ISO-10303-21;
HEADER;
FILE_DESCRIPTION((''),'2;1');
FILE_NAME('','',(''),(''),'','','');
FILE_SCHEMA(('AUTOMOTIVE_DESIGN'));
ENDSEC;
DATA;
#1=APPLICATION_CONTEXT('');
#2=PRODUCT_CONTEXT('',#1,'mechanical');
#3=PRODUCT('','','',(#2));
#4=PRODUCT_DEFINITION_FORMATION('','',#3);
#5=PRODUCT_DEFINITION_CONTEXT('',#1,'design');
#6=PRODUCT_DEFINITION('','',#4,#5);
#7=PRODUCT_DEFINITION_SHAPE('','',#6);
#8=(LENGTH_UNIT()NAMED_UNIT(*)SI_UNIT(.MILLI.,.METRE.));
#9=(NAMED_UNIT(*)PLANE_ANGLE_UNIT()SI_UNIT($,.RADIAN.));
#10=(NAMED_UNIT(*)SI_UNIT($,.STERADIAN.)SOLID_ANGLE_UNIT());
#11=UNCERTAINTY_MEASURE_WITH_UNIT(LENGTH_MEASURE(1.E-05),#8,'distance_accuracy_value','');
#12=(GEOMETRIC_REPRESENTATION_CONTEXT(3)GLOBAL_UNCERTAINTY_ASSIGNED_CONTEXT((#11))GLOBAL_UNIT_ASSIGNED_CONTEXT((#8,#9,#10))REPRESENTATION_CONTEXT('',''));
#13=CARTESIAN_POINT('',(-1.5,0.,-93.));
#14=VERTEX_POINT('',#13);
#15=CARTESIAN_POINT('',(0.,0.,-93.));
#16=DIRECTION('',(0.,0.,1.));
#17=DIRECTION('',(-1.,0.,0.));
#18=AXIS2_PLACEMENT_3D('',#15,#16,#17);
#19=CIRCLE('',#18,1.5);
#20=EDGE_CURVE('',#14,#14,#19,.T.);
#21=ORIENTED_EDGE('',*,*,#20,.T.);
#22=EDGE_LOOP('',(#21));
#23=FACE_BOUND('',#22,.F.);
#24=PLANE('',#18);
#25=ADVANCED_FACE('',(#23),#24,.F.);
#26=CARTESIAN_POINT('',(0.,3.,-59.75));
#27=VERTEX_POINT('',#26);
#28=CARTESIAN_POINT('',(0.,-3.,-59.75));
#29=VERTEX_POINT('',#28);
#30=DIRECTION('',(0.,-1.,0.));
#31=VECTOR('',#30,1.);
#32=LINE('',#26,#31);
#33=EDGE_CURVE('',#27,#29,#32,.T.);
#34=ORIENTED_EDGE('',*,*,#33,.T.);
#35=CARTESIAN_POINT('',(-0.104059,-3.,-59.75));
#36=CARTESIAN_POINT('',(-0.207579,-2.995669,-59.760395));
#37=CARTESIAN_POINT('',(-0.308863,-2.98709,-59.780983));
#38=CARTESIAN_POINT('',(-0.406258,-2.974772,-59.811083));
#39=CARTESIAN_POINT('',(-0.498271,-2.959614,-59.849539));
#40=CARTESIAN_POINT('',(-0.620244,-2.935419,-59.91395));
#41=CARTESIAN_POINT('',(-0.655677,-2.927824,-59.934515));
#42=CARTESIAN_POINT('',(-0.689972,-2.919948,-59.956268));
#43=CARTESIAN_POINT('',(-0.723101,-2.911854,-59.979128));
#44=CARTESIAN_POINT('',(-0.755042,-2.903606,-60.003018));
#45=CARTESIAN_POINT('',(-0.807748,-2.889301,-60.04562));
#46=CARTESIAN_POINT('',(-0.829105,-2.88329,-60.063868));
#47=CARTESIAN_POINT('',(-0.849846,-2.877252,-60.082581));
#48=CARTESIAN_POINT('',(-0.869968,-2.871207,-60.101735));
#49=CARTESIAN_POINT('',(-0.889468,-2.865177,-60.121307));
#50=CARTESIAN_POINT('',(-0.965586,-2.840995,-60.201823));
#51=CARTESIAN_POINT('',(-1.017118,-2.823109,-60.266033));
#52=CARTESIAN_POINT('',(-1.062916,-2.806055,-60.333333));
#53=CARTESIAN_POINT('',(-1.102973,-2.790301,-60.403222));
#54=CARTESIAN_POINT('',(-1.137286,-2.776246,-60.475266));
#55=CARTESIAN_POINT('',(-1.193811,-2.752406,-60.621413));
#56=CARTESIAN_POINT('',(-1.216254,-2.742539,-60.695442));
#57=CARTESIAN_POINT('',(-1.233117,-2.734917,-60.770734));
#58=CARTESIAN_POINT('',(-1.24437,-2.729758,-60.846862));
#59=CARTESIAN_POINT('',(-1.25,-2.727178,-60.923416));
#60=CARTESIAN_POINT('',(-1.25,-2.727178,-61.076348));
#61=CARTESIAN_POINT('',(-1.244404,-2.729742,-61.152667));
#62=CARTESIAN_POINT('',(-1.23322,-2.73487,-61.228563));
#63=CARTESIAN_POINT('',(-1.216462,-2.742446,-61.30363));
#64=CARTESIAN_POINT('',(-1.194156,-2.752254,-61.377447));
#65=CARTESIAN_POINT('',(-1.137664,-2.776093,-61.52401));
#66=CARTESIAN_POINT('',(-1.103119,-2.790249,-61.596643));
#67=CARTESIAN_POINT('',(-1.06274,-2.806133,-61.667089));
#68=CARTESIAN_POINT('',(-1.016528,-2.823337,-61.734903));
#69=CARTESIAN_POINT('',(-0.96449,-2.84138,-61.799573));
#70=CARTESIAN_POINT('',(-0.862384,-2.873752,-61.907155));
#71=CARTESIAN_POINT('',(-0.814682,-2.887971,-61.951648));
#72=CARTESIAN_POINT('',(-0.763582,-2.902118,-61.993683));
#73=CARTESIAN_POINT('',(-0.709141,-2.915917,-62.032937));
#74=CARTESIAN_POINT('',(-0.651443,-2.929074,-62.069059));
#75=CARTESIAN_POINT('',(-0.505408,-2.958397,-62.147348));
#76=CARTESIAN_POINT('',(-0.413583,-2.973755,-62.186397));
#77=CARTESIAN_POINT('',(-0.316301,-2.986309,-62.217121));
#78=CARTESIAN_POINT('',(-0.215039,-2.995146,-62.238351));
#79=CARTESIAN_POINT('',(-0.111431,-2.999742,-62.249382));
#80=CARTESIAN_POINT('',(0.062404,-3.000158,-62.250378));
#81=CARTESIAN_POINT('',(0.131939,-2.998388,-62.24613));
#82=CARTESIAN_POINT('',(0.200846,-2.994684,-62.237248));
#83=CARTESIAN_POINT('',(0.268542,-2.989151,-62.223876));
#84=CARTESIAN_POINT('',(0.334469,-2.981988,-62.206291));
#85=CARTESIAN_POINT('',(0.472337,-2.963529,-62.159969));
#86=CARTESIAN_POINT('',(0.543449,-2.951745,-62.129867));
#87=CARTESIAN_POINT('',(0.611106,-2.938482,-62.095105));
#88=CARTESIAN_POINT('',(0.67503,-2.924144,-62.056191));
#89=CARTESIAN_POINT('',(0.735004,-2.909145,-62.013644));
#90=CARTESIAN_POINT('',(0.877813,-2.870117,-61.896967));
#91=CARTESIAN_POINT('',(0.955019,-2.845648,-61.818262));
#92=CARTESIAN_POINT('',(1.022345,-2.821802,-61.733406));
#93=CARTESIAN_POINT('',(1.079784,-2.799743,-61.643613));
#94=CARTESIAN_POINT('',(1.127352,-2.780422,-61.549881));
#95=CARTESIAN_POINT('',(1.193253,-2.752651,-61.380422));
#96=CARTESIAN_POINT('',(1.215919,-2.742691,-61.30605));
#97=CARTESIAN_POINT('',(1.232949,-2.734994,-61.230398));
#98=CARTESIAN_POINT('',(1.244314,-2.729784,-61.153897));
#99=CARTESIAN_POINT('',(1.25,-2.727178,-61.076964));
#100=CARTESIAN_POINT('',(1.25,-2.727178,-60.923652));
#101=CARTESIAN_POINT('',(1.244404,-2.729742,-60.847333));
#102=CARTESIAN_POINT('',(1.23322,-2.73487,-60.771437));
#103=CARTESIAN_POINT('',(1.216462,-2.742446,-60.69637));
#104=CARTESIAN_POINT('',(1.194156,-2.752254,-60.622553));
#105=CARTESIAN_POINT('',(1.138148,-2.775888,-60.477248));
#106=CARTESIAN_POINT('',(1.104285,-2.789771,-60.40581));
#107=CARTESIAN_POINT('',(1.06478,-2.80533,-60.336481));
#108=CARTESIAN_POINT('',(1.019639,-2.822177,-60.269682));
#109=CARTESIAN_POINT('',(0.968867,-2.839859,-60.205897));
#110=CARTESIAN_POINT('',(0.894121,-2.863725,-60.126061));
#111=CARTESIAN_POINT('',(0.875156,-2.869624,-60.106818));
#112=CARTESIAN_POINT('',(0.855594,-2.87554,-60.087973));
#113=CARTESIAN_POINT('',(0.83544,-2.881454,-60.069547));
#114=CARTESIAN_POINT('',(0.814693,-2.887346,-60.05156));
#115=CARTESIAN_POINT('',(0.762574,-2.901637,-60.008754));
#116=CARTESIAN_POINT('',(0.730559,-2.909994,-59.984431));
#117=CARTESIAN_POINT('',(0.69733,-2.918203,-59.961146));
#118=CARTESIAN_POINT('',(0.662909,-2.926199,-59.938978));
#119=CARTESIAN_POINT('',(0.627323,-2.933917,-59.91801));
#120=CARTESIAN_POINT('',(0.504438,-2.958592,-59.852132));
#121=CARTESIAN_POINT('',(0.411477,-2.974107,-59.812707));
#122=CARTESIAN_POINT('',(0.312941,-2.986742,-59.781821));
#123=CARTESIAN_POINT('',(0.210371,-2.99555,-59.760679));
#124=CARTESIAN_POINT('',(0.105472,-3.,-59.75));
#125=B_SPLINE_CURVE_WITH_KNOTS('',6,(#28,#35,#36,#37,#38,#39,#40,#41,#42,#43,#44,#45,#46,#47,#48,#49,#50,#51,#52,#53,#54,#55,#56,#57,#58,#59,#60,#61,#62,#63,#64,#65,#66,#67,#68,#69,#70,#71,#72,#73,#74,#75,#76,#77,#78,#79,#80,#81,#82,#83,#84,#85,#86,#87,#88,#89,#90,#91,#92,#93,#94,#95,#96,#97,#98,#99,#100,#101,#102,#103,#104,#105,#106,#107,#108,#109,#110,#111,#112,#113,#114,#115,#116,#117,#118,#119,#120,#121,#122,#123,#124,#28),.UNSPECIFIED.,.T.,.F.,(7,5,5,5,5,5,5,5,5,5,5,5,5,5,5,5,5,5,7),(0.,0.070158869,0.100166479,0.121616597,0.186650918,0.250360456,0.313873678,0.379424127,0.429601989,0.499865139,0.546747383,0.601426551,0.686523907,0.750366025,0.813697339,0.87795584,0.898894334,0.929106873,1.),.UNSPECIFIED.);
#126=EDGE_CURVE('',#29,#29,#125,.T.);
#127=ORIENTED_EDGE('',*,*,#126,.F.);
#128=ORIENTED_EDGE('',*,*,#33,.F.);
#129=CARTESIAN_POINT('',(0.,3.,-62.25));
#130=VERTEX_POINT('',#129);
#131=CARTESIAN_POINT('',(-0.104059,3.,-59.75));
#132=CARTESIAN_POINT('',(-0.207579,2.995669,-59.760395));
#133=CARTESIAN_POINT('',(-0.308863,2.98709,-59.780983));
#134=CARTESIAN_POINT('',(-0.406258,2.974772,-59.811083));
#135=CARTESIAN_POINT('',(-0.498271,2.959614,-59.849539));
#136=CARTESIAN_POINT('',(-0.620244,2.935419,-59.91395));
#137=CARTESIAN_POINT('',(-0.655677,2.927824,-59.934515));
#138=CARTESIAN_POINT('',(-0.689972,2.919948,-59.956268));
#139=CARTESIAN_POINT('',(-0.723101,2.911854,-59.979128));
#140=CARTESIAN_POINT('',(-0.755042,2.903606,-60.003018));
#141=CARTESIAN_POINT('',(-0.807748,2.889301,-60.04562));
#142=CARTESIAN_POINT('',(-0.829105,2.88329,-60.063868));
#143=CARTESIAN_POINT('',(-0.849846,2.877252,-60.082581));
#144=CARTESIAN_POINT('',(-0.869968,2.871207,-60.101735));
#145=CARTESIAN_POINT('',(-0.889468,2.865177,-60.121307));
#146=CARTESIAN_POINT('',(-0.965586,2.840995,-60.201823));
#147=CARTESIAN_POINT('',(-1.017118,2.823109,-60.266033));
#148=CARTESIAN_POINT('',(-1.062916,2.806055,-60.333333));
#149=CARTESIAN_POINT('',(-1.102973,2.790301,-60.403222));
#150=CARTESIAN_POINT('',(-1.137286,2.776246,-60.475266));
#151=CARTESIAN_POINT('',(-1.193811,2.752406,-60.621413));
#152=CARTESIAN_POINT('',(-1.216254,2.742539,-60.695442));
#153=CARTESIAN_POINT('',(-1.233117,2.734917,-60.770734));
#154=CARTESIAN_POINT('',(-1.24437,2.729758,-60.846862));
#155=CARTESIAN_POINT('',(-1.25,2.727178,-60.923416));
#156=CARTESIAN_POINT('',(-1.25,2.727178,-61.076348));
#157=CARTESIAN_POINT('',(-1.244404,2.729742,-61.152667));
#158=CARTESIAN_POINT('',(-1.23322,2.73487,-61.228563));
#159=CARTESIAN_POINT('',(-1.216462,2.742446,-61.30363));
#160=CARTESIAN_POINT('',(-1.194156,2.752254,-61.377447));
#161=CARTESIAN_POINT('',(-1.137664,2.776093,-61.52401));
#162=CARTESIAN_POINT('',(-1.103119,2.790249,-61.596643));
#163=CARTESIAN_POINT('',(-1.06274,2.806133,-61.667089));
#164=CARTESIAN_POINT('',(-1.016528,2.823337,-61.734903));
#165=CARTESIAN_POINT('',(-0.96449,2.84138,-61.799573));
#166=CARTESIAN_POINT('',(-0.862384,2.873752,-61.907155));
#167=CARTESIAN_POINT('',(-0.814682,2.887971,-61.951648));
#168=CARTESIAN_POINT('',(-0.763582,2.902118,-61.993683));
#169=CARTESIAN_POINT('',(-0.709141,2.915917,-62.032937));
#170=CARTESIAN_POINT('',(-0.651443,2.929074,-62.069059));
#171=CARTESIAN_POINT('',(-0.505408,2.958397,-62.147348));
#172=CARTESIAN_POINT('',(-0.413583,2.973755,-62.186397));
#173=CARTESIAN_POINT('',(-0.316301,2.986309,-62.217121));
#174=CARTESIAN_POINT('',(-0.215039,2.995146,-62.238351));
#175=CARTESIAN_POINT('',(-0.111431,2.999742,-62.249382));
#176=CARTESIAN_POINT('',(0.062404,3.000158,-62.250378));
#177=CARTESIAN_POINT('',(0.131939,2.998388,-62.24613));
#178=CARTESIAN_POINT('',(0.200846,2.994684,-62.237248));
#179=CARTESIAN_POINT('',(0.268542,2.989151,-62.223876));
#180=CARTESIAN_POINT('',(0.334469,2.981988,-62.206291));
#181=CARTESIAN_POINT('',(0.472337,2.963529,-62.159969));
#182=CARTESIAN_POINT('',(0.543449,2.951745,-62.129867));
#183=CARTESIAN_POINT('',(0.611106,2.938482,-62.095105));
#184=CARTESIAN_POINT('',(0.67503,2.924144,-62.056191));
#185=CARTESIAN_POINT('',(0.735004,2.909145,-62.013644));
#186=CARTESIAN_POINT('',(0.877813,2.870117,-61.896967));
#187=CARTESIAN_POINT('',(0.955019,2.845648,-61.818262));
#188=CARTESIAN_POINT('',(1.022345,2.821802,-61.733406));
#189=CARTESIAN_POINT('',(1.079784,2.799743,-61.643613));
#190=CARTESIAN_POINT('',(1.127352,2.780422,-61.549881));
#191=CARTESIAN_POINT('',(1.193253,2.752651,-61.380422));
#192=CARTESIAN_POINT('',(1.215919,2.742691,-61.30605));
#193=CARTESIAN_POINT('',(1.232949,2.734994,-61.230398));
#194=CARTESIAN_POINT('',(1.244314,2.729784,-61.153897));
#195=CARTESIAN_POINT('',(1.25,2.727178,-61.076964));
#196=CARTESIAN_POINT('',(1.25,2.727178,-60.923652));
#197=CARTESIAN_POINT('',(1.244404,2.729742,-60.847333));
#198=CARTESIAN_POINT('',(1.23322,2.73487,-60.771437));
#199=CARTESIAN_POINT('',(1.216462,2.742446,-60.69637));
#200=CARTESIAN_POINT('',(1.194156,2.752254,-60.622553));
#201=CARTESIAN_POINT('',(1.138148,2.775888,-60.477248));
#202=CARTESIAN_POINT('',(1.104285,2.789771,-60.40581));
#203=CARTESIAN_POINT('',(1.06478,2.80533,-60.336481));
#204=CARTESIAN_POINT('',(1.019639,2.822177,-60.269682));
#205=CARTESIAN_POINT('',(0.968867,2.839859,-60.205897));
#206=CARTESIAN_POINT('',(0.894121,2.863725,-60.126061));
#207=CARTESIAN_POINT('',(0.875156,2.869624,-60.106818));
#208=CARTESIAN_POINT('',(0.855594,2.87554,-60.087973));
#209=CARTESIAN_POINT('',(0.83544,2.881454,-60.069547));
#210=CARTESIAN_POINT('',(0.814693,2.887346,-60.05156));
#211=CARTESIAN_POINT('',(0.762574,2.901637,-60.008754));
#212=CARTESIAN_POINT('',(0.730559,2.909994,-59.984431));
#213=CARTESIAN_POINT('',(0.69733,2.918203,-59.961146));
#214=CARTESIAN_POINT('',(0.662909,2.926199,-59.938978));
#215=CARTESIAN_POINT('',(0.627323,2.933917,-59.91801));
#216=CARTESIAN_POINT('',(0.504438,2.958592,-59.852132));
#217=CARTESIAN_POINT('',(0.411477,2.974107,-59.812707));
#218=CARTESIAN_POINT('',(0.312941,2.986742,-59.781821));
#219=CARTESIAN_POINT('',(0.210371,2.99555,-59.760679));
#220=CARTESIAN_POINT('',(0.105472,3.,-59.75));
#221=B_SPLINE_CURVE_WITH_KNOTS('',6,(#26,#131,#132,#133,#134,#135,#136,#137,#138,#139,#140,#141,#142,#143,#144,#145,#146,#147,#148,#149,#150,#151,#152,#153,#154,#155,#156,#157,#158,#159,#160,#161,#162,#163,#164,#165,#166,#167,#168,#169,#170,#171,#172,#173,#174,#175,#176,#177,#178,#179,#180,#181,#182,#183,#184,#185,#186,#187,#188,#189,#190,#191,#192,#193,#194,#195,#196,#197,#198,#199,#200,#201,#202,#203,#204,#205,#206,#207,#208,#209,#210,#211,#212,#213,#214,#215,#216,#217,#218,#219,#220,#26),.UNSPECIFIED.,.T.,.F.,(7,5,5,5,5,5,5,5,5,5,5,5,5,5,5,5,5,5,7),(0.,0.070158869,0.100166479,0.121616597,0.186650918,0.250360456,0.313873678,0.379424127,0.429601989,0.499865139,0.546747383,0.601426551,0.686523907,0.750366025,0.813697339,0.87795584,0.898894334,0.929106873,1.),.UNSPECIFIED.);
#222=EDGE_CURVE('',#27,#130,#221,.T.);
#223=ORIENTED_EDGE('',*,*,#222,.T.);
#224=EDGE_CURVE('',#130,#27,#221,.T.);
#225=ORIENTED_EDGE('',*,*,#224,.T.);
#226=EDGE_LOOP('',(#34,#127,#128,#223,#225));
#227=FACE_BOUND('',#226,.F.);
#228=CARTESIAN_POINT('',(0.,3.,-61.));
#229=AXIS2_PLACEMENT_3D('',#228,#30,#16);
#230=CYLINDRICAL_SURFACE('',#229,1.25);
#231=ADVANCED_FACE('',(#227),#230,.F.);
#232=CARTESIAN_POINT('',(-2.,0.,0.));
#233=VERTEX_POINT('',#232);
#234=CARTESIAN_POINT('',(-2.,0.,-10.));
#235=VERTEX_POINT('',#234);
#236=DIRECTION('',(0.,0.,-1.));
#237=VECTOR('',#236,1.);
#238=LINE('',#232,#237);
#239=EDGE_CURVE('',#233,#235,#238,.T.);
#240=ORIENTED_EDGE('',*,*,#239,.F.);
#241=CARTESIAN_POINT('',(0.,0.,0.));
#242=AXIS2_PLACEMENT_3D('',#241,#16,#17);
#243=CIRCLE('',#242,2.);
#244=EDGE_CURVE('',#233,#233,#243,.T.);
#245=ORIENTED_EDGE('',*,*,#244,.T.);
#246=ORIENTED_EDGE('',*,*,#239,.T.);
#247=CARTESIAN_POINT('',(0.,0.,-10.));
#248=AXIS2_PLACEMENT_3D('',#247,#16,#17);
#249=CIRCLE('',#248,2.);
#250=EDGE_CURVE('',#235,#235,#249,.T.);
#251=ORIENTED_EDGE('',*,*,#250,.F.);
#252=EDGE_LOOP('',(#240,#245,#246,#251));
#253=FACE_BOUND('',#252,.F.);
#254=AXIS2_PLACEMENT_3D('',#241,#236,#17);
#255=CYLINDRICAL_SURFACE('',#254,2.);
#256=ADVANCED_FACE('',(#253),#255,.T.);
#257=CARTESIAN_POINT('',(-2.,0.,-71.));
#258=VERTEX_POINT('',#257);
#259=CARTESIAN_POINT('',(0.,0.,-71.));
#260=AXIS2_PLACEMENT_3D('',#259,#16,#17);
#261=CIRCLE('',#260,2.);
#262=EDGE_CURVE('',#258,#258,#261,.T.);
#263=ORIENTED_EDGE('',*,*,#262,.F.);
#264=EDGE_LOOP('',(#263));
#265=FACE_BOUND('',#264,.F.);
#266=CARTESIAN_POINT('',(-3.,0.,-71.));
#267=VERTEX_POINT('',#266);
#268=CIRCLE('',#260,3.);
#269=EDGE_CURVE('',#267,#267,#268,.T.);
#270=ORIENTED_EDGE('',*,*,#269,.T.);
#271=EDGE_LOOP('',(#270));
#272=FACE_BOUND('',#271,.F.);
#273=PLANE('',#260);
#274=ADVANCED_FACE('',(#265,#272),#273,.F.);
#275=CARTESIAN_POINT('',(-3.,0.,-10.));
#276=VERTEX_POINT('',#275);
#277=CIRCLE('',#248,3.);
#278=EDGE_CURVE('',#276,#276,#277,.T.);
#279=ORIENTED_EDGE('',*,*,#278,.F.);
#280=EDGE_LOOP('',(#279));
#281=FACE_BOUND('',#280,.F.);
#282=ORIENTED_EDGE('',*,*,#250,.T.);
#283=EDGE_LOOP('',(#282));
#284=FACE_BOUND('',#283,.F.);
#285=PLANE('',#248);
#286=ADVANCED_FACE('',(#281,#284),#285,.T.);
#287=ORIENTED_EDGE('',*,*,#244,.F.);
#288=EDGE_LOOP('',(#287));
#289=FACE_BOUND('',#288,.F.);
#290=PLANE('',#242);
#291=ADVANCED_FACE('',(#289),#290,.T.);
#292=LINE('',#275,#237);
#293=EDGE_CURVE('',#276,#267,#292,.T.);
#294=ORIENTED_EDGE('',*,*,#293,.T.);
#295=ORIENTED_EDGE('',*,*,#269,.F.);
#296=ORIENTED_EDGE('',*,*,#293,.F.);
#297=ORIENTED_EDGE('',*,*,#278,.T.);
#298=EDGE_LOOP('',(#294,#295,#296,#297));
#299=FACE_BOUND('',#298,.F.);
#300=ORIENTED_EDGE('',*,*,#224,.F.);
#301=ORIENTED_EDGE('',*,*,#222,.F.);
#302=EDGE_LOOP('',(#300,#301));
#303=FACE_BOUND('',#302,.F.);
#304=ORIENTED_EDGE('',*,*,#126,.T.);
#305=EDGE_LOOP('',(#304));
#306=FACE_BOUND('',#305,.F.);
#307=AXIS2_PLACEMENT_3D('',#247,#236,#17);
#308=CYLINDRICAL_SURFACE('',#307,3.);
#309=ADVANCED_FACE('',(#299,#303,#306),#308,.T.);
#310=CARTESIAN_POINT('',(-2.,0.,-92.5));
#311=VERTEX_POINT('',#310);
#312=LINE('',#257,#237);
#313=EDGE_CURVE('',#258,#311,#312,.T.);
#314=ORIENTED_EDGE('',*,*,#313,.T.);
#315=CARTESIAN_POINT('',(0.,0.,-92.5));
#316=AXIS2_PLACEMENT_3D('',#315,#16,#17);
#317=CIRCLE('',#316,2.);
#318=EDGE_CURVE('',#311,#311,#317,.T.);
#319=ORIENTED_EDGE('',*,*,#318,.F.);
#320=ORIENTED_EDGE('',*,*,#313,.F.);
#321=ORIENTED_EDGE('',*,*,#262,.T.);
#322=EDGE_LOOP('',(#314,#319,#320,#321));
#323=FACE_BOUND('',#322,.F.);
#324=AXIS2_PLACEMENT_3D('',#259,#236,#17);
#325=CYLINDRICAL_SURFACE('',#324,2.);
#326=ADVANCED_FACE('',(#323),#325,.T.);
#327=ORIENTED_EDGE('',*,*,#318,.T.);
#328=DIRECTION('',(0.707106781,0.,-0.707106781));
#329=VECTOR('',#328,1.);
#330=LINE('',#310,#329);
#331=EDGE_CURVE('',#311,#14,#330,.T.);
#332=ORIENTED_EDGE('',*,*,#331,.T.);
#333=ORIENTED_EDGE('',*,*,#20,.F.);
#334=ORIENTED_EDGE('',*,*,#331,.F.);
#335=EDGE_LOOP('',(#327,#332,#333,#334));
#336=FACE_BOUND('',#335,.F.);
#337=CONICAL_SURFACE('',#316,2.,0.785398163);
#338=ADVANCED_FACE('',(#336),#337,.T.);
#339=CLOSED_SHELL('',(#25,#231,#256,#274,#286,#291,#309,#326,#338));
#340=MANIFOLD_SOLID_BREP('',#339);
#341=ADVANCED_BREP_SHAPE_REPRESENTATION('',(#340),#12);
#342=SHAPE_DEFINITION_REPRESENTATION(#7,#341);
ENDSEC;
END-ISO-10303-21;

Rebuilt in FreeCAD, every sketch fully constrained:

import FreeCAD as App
import Part
import Sketcher

V = App.Vector


def edges_at(feature, points):
    """Names of the edges that pass closest to the given points."""
    edges = feature.Shape.Edges
    near = lambda p: min(range(len(edges)), key=lambda i: edges[i].distToShape(Part.Vertex(*p))[0])
    return sorted({f"Edge{near(p) + 1}" for p in points})


def add_polygon(sketch, points):
    """Adds a closed chain of lines whose ends are joined by coincident constraints."""
    first, n = sketch.GeometryCount, len(points)
    for a, b in zip(points, points[1:] + points[:1]):
        sketch.addGeometry(Part.LineSegment(App.Vector(*a, 0), App.Vector(*b, 0)), False)
    for i in range(n):
        sketch.addConstraint(Sketcher.Constraint("Coincident", first + i, 2, first + (i + 1) % n, 1))

doc = App.newDocument("Part")
body = doc.addObject("PartDesign::Body", "Body")

sketch1 = body.newObject("Sketcher::SketchObject", "Sketch")
sketch1.AttachmentSupport = (doc.getObject("XZ_Plane"), [""])
sketch1.MapMode = "FlatFace"
add_polygon(sketch1, [(-2, 0), (0, 0), (0, -93), (-2, -93), (-2, -71), (-3, -71), (-3, -10), (-2, -10)])
sketch1.addConstraint([
    Sketcher.Constraint("Horizontal", 0),
    Sketcher.Constraint("Vertical", 1),
    Sketcher.Constraint("Horizontal", 2),
    Sketcher.Constraint("Vertical", 3),
    Sketcher.Constraint("Horizontal", 4),
    Sketcher.Constraint("Vertical", 5),
    Sketcher.Constraint("Horizontal", 6),
    Sketcher.Constraint("Vertical", 7),
    Sketcher.Constraint("Coincident", 0, 2, -1, 1),
    Sketcher.Constraint("Vertical", 3, 2, 6, 2),
    Sketcher.Constraint("DistanceY", 1, 2, 1, 1, 93.0),
    Sketcher.Constraint("DistanceY", 3, 1, 3, 2, 22.0),
    Sketcher.Constraint("DistanceY", 7, 1, 7, 2, 10.0),
    Sketcher.Constraint("DistanceX", 0, 1, 0, 2, 2.0),
    Sketcher.Constraint("DistanceX", 4, 2, 4, 1, 1.0),
])
revolution = body.newObject("PartDesign::Revolution", "Revolution")
revolution.Profile = sketch1
revolution.ReferenceAxis = (sketch1, ["V_Axis"])
revolution.Angle = 360

sketch2 = body.newObject("Sketcher::SketchObject", "Sketch001")
sketch2.AttachmentSupport = (doc.getObject("XZ_Plane"), [""])
sketch2.MapMode = "FlatFace"
sketch2.AttachmentOffset = App.Placement(V(0, 0, -3), App.Rotation())
sketch2.addGeometry(Part.Circle(V(0, -61, 0), V(0, 0, 1), 1.2), False)
sketch2.addConstraint([
    Sketcher.Constraint("PointOnObject", 0, 3, -2),
    Sketcher.Constraint("Diameter", 0, 2.5),
    Sketcher.Constraint("DistanceY", 0, 3, -1, 1, 61.0),
])
doc.recompute()
hole = body.newObject("PartDesign::Hole", "Hole")
hole.Profile = sketch2
hole.ThreadType = "None"
hole.Diameter = 2.5
hole.DepthType = "ThroughAll"
hole.Reversed = True
doc.recompute()

chamfer = body.newObject("PartDesign::Chamfer", "Chamfer")
chamfer.Base = (hole, edges_at(hole, [(2, 0, -93)]))
chamfer.Size = 0.5

doc.recompute()
